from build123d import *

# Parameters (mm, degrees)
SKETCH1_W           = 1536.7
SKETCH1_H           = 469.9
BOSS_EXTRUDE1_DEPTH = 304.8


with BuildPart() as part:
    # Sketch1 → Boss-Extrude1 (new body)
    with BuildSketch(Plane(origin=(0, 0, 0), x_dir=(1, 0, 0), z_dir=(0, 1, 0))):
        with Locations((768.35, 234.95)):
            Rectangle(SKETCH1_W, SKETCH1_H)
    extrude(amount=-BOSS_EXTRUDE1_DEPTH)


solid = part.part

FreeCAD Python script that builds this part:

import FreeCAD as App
import Part
import Sketcher
from FreeCAD import Vector
Q = App.Units.Quantity


def add_polygon(sketch, points):
    """Adds a closed chain of lines whose ends are joined by coincident constraints."""
    first, n = sketch.GeometryCount, len(points)
    for a, b in zip(points, points[1:] + points[:1]):
        sketch.addGeometry(Part.LineSegment(App.Vector(*a, 0), App.Vector(*b, 0)), False)
    for i in range(n):
        sketch.addConstraint(Sketcher.Constraint("Coincident", first + i, 2, first + (i + 1) % n, 1))

doc = App.newDocument("Part")
body = doc.addObject("PartDesign::Body", "Body")

# Sketch on XZ plane
sketch1 = body.newObject("Sketcher::SketchObject", "Sketch")
sketch1.AttachmentSupport = (doc.getObject("XZ_Plane"), [""])
sketch1.MapMode = "FlatFace"
add_polygon(sketch1, [(0, -470), (0, 0), (1537, 0), (1537, -470)])  # lines 0-3
sketch1.addConstraint([
    Sketcher.Constraint("Vertical", 0),
    Sketcher.Constraint("Horizontal", 1),
    Sketcher.Constraint("Vertical", 2),
    Sketcher.Constraint("Horizontal", 3),
    Sketcher.Constraint("Coincident", 0, 2, -1, 1),
    Sketcher.Constraint("DistanceX", 1, 1, 1, 2, Q("60.5 in")),
    Sketcher.Constraint("DistanceY", 0, 1, 0, 2, Q("18.5 in")),
])
pad1 = body.newObject("PartDesign::Pad", "Pad")
pad1.Profile = sketch1
pad1.Length = Q("12 in")

doc.recompute()
